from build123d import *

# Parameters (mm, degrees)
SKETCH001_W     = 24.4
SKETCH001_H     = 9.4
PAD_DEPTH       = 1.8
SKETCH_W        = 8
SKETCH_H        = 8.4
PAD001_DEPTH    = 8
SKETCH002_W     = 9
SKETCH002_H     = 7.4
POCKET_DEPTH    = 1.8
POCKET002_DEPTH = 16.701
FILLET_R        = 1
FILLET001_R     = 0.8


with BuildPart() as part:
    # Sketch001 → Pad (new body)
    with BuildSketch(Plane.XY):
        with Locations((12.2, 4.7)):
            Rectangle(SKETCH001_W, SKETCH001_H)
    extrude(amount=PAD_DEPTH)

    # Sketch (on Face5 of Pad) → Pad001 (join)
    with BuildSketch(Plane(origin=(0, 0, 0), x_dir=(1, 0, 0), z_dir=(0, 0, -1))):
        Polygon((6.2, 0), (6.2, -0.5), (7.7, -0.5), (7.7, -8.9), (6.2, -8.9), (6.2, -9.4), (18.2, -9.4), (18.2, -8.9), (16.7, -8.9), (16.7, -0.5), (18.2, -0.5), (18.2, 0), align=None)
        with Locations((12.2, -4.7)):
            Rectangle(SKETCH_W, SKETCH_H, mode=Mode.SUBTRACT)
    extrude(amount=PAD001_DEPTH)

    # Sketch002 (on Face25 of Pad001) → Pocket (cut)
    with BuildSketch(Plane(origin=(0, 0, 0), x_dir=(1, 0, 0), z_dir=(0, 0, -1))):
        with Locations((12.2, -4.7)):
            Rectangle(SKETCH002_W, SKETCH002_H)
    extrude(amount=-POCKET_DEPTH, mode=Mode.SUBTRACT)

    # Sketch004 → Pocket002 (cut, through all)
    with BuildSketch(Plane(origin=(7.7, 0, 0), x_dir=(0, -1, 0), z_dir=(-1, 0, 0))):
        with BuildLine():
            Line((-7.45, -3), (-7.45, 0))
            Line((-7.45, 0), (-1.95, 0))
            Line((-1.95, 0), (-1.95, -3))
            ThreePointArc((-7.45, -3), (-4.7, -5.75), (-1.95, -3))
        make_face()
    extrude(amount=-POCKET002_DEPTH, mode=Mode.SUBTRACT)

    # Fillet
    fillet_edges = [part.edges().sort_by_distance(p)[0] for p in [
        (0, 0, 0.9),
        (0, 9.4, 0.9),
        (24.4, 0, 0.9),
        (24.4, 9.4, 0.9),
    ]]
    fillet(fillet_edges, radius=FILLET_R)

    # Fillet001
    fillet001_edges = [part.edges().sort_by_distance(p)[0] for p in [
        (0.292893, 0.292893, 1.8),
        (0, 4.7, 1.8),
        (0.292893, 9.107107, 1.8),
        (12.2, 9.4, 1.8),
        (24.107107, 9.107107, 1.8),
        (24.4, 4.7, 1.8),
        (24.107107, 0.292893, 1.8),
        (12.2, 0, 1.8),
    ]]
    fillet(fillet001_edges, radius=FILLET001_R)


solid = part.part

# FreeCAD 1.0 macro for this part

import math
import FreeCAD as App
import Part
import Sketcher

V = App.Vector


def edges_at(feature, points):
    """Names of the edges that pass closest to the given points."""
    edges = feature.Shape.Edges
    near = lambda p: min(range(len(edges)), key=lambda i: edges[i].distToShape(Part.Vertex(*p))[0])
    return sorted({f"Edge{near(p) + 1}" for p in points})


def add_polygon(sketch, points):
    """Adds a closed chain of lines whose ends are joined by coincident constraints."""
    first, n = sketch.GeometryCount, len(points)
    for a, b in zip(points, points[1:] + points[:1]):
        sketch.addGeometry(Part.LineSegment(App.Vector(*a, 0), App.Vector(*b, 0)), False)
    for i in range(n):
        sketch.addConstraint(Sketcher.Constraint("Coincident", first + i, 2, first + (i + 1) % n, 1))

doc = App.newDocument("Part")
body = doc.addObject("PartDesign::Body", "Body")

# Sketch on XY plane
sketch1 = body.newObject("Sketcher::SketchObject", "Sketch")
sketch1.AttachmentSupport = (doc.getObject("XY_Plane"), [""])
sketch1.MapMode = "FlatFace"
add_polygon(sketch1, [(0, 9), (0, 0), (24, 0), (24, 9)])  # lines 0-3
sketch1.addConstraint(Sketcher.Constraint("Vertical", 0))
sketch1.addConstraint(Sketcher.Constraint("Horizontal", 1))
sketch1.addConstraint(Sketcher.Constraint("Vertical", 2))
sketch1.addConstraint(Sketcher.Constraint("Horizontal", 3))
sketch1.addConstraint(Sketcher.Constraint("Coincident", 0, 2, -1, 1))
sketch1.addConstraint(Sketcher.Constraint("DistanceX", 1, 1, 1, 2, 24.4))
sketch1.addConstraint(Sketcher.Constraint("DistanceY", 0, 2, 0, 1, 9.4))
pad1 = body.newObject("PartDesign::Pad", "Pad")
pad1.Profile = sketch1
pad1.Length = 1.8

# Sketch on XY plane
sketch2 = body.newObject("Sketcher::SketchObject", "Sketch001")
sketch2.AttachmentSupport = (doc.getObject("XY_Plane"), [""])
sketch2.MapMode = "FlatFace"
add_polygon(sketch2, [(6.2, 0), (6.2, 0.5), (7.7, 0.5), (7.7, 8.9), (6.2, 8.9), (6.2, 9.4), (18.2, 9.4), (18.2, 8.9), (16.7, 8.9), (16.7, 0.5), (18.2, 0.5), (18.2, 0)])  # lines 0-11
add_polygon(sketch2, [(16.2, 8.9), (8.2, 8.9), (8.2, 0.5), (16.2, 0.5)])  # lines 12-15
sketch2.addConstraint(Sketcher.Constraint("Vertical", 0))
sketch2.addConstraint(Sketcher.Constraint("Horizontal", 1))
sketch2.addConstraint(Sketcher.Constraint("Vertical", 2))
sketch2.addConstraint(Sketcher.Constraint("Horizontal", 3))
sketch2.addConstraint(Sketcher.Constraint("Vertical", 4))
sketch2.addConstraint(Sketcher.Constraint("Horizontal", 5))
sketch2.addConstraint(Sketcher.Constraint("Vertical", 6))
sketch2.addConstraint(Sketcher.Constraint("Horizontal", 7))
sketch2.addConstraint(Sketcher.Constraint("Vertical", 8))
sketch2.addConstraint(Sketcher.Constraint("Horizontal", 9))
sketch2.addConstraint(Sketcher.Constraint("Vertical", 10))
sketch2.addConstraint(Sketcher.Constraint("Horizontal", 11))
sketch2.addConstraint(Sketcher.Constraint("Horizontal", 12))
sketch2.addConstraint(Sketcher.Constraint("Vertical", 13))
sketch2.addConstraint(Sketcher.Constraint("Horizontal", 14))
sketch2.addConstraint(Sketcher.Constraint("Vertical", 15))
sketch2.addConstraint(Sketcher.Constraint("PointOnObject", 10, 2, -1))
sketch2.addConstraint(Sketcher.Constraint("Horizontal", 3, 2, 6, 2))
sketch2.addConstraint(Sketcher.Constraint("Horizontal", 1, 2, 8, 2))
sketch2.addConstraint(Sketcher.Constraint("Horizontal", 7, 2, 12, 2))
sketch2.addConstraint(Sketcher.Constraint("Horizontal", 9, 2, 13, 2))
sketch2.addConstraint(Sketcher.Constraint("Vertical", 0, 2, 3, 2))
sketch2.addConstraint(Sketcher.Constraint("Vertical", 6, 2, 9, 2))
sketch2.addConstraint(Sketcher.Constraint("Equal", 3, 7))
sketch2.addConstraint(Sketcher.Constraint("Equal", 0, 4))
sketch2.addConstraint(Sketcher.Constraint("DistanceX", 5, 1, 5, 2, 12.0))
sketch2.addConstraint(Sketcher.Constraint("DistanceX", 12, 2, 12, 1, 8.0))
sketch2.addConstraint(Sketcher.Constraint("DistanceX", 1, 1, 1, 2, 1.5))
sketch2.addConstraint(Sketcher.Constraint("DistanceY", 0, 1, 0, 2, 0.5))
sketch2.addConstraint(Sketcher.Constraint("DistanceY", 2, 1, 2, 2, 8.4))
sketch2.addConstraint(Sketcher.Constraint("DistanceX", 3, 2, 12, 2, 2.0))
sketch2.addConstraint(Sketcher.Constraint("DistanceX", -1, 1, 0, 2, 6.2))
pad2 = body.newObject("PartDesign::Pad", "Pad001")
pad2.Profile = sketch2
pad2.Length = 8
pad2.Reversed = True

# Sketch on XY plane
sketch3 = body.newObject("Sketcher::SketchObject", "Sketch002")
sketch3.AttachmentSupport = (doc.getObject("XY_Plane"), [""])
sketch3.MapMode = "FlatFace"
add_polygon(sketch3, [(8, 1), (8, 8), (17, 8), (17, 1)])  # lines 0-3
sketch3.addConstraint(Sketcher.Constraint("Vertical", 0))
sketch3.addConstraint(Sketcher.Constraint("Horizontal", 1))
sketch3.addConstraint(Sketcher.Constraint("Vertical", 2))
sketch3.addConstraint(Sketcher.Constraint("Horizontal", 3))
sketch3.addConstraint(Sketcher.Constraint("DistanceX", 1, 1, 1, 2, 9.0))
sketch3.addConstraint(Sketcher.Constraint("DistanceY", 0, 1, 0, 2, 7.4))
sketch3.addConstraint(Sketcher.Constraint("DistanceY", -1, 1, 2, 2, 1.0))
sketch3.addConstraint(Sketcher.Constraint("DistanceX", -1, 1, 0, 2, 7.7))
pocket1 = body.newObject("PartDesign::Pocket", "Pocket")
pocket1.Profile = sketch3
pocket1.Length = 1.8
pocket1.Reversed = True

# Sketch on YZ plane
sketch4 = body.newObject("Sketcher::SketchObject", "Sketch003")
sketch4.AttachmentSupport = (doc.getObject("YZ_Plane"), [""])
sketch4.MapMode = "FlatFace"
sketch4.AttachmentOffset = App.Placement(V(0, 0, 7.7), App.Rotation())
sketch4.addGeometry(Part.LineSegment(V(7.5, 0, 0), V(7.5, -3, 0)), False)
sketch4.addGeometry(Part.ArcOfCircle(Part.Circle(V(4.7, -3, 0), V(0, 0, 1), 2.8), math.radians(180), math.radians(360)), False)
sketch4.addGeometry(Part.LineSegment(V(1.9, -3, 0), V(1.9, 0, 0)), False)
sketch4.addGeometry(Part.LineSegment(V(1.9, 0, 0), V(7.5, 0, 0)), False)
sketch4.addConstraint(Sketcher.Constraint("Tangent", 0, 2, 1, 2))
sketch4.addConstraint(Sketcher.Constraint("Tangent", 1, 1, 2, 1))
sketch4.addConstraint(Sketcher.Constraint("Coincident", 2, 2, 3, 1))
sketch4.addConstraint(Sketcher.Constraint("Coincident", 3, 2, 0, 1))
sketch4.addConstraint(Sketcher.Constraint("Vertical", 0))
sketch4.addConstraint(Sketcher.Constraint("Vertical", 2))
sketch4.addConstraint(Sketcher.Constraint("Horizontal", 3))
sketch4.addConstraint(Sketcher.Constraint("PointOnObject", 2, 2, -1))
sketch4.addConstraint(Sketcher.Constraint("DistanceY", 0, 2, 0, 1, 3.0))
sketch4.addConstraint(Sketcher.Constraint("Radius", 1, 2.75))
sketch4.addConstraint(Sketcher.Constraint("DistanceX", -1, 1, 1, 3, 4.7))
pocket2 = body.newObject("PartDesign::Pocket", "Pocket001")
pocket2.Profile = sketch4
pocket2.Type = "ThroughAll"
pocket2.Reversed = True
doc.recompute()

fillet = body.newObject("PartDesign::Fillet", "Fillet")
fillet.Base = (pocket2, edges_at(pocket2, [
    (0, 0, 0.9),
    (0, 9.4, 0.9),
    (24.4, 0, 0.9),
    (24.4, 9.4, 0.9),
]))
fillet.Radius = 1
doc.recompute()

fillet2 = body.newObject("PartDesign::Fillet", "Fillet001")
fillet2.Base = (fillet, edges_at(fillet, [
    (0.293, 0.293, 1.8),
    (0, 4.7, 1.8),
    (0.293, 9.107, 1.8),
    (12.2, 9.4, 1.8),
    (24.107, 9.107, 1.8),
    (24.4, 4.7, 1.8),
    (24.107, 0.293, 1.8),
    (12.2, 0, 1.8),
]))
fillet2.Radius = 0.8

doc.recompute()
